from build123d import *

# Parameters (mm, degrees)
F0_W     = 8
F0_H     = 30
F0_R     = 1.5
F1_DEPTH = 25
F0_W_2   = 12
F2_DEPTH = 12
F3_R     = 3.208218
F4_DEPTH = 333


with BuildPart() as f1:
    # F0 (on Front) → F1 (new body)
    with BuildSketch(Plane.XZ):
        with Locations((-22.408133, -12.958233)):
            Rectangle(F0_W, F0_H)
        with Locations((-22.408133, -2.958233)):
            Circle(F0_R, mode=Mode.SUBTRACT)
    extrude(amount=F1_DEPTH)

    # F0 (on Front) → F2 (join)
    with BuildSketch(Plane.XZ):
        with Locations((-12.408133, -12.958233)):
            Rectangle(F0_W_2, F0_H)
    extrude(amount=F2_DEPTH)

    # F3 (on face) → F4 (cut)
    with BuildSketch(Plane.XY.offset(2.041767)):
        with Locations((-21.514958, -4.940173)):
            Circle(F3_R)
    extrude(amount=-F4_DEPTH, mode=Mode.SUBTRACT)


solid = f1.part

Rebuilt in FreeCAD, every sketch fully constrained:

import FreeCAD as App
import Part
import Sketcher
from FreeCAD import Vector
Q = App.Units.Quantity

doc = App.newDocument("Part")
body = doc.addObject("PartDesign::Body", "Body")

# Sketch on XZ plane
sketch1 = body.newObject("Sketcher::SketchObject", "Sketch")
sketch1.AttachmentSupport = (doc.getObject("XZ_Plane"), [""])
sketch1.MapMode = "FlatFace"
sketch1.addGeometry(Part.LineSegment(Vector(-26.408133, 2.041767, 0), Vector(-26.408133, -27.958233, 0)), False)
sketch1.addGeometry(Part.LineSegment(Vector(-26.408133, -27.958233, 0), Vector(-18.408133, -27.958233, 0)), False)
sketch1.addGeometry(Part.LineSegment(Vector(-18.408133, -27.958233, 0), Vector(-18.408133, 2.041767, 0)), False)
sketch1.addGeometry(Part.LineSegment(Vector(-18.408133, 2.041767, 0), Vector(-26.408133, 2.041767, 0)), False)
sketch1.addGeometry(Part.Circle(Vector(-22.408133, -2.958233, 0), Vector(0, 0, 1), 1.5), False)
sketch1.addConstraint(Sketcher.Constraint("Coincident", 0, 2, 1, 1))
sketch1.addConstraint(Sketcher.Constraint("Coincident", 1, 2, 2, 1))
sketch1.addConstraint(Sketcher.Constraint("Coincident", 2, 2, 3, 1))
sketch1.addConstraint(Sketcher.Constraint("Coincident", 3, 2, 0, 1))
sketch1.addConstraint(Sketcher.Constraint("Vertical", 0))
sketch1.addConstraint(Sketcher.Constraint("Horizontal", 1))
sketch1.addConstraint(Sketcher.Constraint("Vertical", 2))
sketch1.addConstraint(Sketcher.Constraint("Horizontal", 3))
sketch1.addConstraint(Sketcher.Constraint("Diameter", 4, Q("3 mm")))
sketch1.addConstraint(Sketcher.Constraint("DistanceX", 1, 1, 1, 2, Q("8 mm")))
sketch1.addConstraint(Sketcher.Constraint("DistanceY", 0, 2, 0, 1, Q("30 mm")))
sketch1.addConstraint(Sketcher.Constraint("DistanceX", 0, 2, 4, 3, Q("4 mm")))
sketch1.addConstraint(Sketcher.Constraint("DistanceY", 0, 2, 4, 3, Q("25 mm")))
sketch1.addConstraint(Sketcher.Constraint("DistanceX", 4, 3, -1, 1, Q("22.408133 mm")))
sketch1.addConstraint(Sketcher.Constraint("DistanceY", 4, 3, -1, 1, Q("2.958233 mm")))
pad1 = body.newObject("PartDesign::Pad", "Pad")
pad1.Profile = sketch1
pad1.Length = 25

# Sketch on XZ plane
sketch2 = body.newObject("Sketcher::SketchObject", "Sketch001")
sketch2.AttachmentSupport = (doc.getObject("XZ_Plane"), [""])
sketch2.MapMode = "FlatFace"
sketch2.addGeometry(Part.LineSegment(Vector(-18.408133, 2.041767, 0), Vector(-18.408133, -27.958233, 0)), False)
sketch2.addGeometry(Part.LineSegment(Vector(-18.408133, -27.958233, 0), Vector(-6.408133, -27.958233, 0)), False)
sketch2.addGeometry(Part.LineSegment(Vector(-6.408133, -27.958233, 0), Vector(-6.408133, 2.041767, 0)), False)
sketch2.addGeometry(Part.LineSegment(Vector(-6.408133, 2.041767, 0), Vector(-18.408133, 2.041767, 0)), False)
sketch2.addConstraint(Sketcher.Constraint("Coincident", 0, 2, 1, 1))
sketch2.addConstraint(Sketcher.Constraint("Coincident", 1, 2, 2, 1))
sketch2.addConstraint(Sketcher.Constraint("Coincident", 2, 2, 3, 1))
sketch2.addConstraint(Sketcher.Constraint("Coincident", 3, 2, 0, 1))
sketch2.addConstraint(Sketcher.Constraint("Vertical", 0))
sketch2.addConstraint(Sketcher.Constraint("Horizontal", 1))
sketch2.addConstraint(Sketcher.Constraint("Vertical", 2))
sketch2.addConstraint(Sketcher.Constraint("Horizontal", 3))
sketch2.addConstraint(Sketcher.Constraint("DistanceX", 1, 1, 1, 2, Q("12 mm")))
sketch2.addConstraint(Sketcher.Constraint("DistanceY", 0, 2, 0, 1, Q("30 mm")))
sketch2.addConstraint(Sketcher.Constraint("DistanceX", 0, 2, -1, 1, Q("18.408133 mm")))
sketch2.addConstraint(Sketcher.Constraint("DistanceY", 0, 2, -1, 1, Q("27.958233 mm")))
pad2 = body.newObject("PartDesign::Pad", "Pad001")
pad2.Profile = sketch2
pad2.Length = 12

# Sketch on XY plane
sketch3 = body.newObject("Sketcher::SketchObject", "Sketch002")
sketch3.AttachmentSupport = (doc.getObject("XY_Plane"), [""])
sketch3.MapMode = "FlatFace"
sketch3.AttachmentOffset = App.Placement(Vector(0, 0, 2.041767), App.Rotation())
sketch3.addGeometry(Part.Circle(Vector(-21.514958, -4.940173, 0), Vector(0, 0, 1), 3.208218), False)
sketch3.addConstraint(Sketcher.Constraint("Diameter", 0, Q("6.416436 mm")))
sketch3.addConstraint(Sketcher.Constraint("DistanceX", 0, 3, -1, 1, Q("21.514958 mm")))
sketch3.addConstraint(Sketcher.Constraint("DistanceY", 0, 3, -1, 1, Q("4.940173 mm")))
pocket1 = body.newObject("PartDesign::Pocket", "Pocket")
pocket1.Profile = sketch3
pocket1.Length = 333

doc.recompute()
